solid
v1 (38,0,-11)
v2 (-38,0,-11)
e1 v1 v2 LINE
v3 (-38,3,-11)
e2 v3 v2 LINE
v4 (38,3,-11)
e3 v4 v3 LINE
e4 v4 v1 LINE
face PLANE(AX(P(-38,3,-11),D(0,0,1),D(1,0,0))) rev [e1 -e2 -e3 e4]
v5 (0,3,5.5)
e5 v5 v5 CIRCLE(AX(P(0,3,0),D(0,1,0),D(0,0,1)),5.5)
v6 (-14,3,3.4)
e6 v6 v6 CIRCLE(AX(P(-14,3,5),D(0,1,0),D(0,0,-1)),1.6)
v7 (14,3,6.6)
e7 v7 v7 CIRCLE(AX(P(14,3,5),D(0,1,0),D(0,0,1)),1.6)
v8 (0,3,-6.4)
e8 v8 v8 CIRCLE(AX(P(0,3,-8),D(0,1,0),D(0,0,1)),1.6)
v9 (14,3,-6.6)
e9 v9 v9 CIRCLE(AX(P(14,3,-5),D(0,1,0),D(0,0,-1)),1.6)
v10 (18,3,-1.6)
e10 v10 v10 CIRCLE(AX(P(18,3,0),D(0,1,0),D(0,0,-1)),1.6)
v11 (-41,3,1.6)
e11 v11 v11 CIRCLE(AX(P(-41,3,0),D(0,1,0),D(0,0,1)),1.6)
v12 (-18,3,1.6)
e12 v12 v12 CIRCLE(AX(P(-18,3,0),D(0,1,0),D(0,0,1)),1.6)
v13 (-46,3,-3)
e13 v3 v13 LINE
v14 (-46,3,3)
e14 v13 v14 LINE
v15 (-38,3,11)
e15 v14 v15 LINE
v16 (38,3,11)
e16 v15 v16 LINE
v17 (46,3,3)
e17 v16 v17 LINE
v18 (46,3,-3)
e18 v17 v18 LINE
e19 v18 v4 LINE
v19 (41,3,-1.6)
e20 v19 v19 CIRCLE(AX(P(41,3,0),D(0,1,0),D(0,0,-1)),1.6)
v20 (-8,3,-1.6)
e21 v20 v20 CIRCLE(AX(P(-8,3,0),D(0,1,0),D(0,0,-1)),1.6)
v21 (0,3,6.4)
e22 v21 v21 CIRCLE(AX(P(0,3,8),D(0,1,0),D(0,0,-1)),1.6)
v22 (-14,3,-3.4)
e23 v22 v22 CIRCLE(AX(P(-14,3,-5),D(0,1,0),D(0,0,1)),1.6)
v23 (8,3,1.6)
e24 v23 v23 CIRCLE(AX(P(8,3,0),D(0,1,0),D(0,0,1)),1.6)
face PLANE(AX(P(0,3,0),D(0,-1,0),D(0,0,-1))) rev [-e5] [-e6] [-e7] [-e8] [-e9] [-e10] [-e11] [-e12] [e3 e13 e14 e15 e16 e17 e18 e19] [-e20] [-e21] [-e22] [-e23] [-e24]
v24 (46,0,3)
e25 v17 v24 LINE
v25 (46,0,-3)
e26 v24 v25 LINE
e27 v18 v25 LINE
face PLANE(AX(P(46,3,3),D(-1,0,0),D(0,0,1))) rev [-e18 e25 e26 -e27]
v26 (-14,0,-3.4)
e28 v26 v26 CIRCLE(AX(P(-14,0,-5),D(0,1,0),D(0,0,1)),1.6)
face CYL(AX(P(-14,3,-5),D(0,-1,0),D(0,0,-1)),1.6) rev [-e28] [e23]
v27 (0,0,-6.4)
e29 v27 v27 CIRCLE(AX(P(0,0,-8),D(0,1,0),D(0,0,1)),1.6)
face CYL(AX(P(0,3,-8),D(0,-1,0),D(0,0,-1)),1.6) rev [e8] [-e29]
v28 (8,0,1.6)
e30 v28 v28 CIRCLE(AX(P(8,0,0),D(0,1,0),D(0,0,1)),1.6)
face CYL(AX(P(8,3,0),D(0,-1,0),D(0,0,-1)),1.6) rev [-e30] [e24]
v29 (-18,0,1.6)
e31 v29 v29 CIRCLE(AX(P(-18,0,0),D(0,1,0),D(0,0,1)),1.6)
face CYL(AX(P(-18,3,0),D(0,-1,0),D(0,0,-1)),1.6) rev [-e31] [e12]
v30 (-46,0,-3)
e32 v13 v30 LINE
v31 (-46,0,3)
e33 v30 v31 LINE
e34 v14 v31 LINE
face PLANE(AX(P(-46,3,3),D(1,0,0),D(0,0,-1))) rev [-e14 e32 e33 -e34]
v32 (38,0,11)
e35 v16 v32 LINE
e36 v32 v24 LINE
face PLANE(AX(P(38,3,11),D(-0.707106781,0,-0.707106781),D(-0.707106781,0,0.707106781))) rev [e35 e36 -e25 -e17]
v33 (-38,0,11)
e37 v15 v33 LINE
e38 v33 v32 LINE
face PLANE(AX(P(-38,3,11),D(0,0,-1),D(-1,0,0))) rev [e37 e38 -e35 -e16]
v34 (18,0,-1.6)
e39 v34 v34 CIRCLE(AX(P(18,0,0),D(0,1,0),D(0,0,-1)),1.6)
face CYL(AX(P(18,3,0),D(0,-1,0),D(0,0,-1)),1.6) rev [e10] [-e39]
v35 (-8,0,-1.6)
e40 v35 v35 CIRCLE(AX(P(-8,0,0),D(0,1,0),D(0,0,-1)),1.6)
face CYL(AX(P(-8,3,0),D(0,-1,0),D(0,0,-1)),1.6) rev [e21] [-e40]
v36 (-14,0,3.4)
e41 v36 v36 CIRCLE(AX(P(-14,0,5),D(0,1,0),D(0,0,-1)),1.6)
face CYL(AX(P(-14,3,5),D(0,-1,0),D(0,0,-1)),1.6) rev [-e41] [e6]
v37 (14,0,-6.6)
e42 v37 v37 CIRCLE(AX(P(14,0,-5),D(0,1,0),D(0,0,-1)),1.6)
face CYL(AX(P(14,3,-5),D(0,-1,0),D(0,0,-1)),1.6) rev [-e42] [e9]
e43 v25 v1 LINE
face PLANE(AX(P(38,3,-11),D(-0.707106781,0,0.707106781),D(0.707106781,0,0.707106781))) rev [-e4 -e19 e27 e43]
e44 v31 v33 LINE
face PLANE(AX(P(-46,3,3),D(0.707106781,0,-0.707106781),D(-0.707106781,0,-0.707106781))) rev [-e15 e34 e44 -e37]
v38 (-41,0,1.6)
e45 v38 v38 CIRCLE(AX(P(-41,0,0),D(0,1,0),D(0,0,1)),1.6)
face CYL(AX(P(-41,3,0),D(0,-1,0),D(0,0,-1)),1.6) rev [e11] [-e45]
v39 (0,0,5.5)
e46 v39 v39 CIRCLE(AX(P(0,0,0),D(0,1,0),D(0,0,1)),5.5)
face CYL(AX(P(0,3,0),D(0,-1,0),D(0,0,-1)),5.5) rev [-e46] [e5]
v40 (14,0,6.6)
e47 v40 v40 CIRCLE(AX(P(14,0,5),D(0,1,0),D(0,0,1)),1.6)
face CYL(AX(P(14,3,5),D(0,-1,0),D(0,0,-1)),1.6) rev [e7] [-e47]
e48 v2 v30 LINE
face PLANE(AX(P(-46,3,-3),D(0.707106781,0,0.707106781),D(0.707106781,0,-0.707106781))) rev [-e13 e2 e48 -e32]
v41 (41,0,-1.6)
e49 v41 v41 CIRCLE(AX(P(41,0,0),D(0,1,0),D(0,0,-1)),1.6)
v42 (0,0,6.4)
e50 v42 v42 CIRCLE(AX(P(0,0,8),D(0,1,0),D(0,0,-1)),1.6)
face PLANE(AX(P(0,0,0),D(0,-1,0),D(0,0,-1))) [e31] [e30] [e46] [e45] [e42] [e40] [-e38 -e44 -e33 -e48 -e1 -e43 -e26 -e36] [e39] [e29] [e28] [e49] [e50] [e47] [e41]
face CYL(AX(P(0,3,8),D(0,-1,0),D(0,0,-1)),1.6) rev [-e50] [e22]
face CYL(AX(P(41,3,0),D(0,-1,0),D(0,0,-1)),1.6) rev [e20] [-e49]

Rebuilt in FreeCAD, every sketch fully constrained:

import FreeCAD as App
import Part
import Sketcher
Q = App.Units.Quantity

doc = App.newDocument("Part")
body = doc.addObject("PartDesign::Body", "Body")

# Sketch on XZ plane
sketch1 = body.newObject("Sketcher::SketchObject", "Sketch")
sketch1.AttachmentSupport = (doc.getObject("XZ_Plane"), [""])
sketch1.MapMode = "FlatFace"
sketch1.addGeometry([
    Part.LineSegment(App.Vector(-38, -11, 0), App.Vector(-46, -3, 0)),  # 0
    Part.LineSegment(App.Vector(-46, -3, 0), App.Vector(-46, 3, 0)),  # 1
    Part.LineSegment(App.Vector(-46, 3, 0), App.Vector(-38, 11, 0)),  # 2
    Part.LineSegment(App.Vector(-38, 11, 0), App.Vector(38, 11, 0)),  # 3
    Part.LineSegment(App.Vector(38, 11, 0), App.Vector(46, 3, 0)),  # 4
    Part.LineSegment(App.Vector(46, 3, 0), App.Vector(46, -3, 0)),  # 5
    Part.LineSegment(App.Vector(46, -3, 0), App.Vector(38, -11, 0)),  # 6
    Part.LineSegment(App.Vector(38, -11, 0), App.Vector(-38, -11, 0)),  # 7
    Part.Circle(App.Vector(14, 5, 0), App.Vector(0, 0, 1), 1.6),  # 8
    Part.Circle(App.Vector(0, 8, 0), App.Vector(0, 0, 1), 1.6),  # 9
    Part.Circle(App.Vector(-14, 5, 0), App.Vector(0, 0, 1), 1.6),  # 10
    Part.Circle(App.Vector(41, 0, 0), App.Vector(0, 0, 1), 1.6),  # 11
    Part.Circle(App.Vector(18, 0, 0), App.Vector(0, 0, 1), 1.6),  # 12
    Part.Circle(App.Vector(8, 0, 0), App.Vector(0, 0, 1), 1.6),  # 13
    Part.Circle(App.Vector(14, -5, 0), App.Vector(0, 0, 1), 1.6),  # 14
    Part.Circle(App.Vector(0, 0, 0), App.Vector(0, 0, 1), 5.5),  # 15
    Part.Circle(App.Vector(-8, 0, 0), App.Vector(0, 0, 1), 1.6),  # 16
    Part.Circle(App.Vector(-18, 0, 0), App.Vector(0, 0, 1), 1.6),  # 17
    Part.Circle(App.Vector(-41, 0, 0), App.Vector(0, 0, 1), 1.6),  # 18
    Part.Circle(App.Vector(-14, -5, 0), App.Vector(0, 0, 1), 1.6),  # 19
    Part.Circle(App.Vector(0, -8, 0), App.Vector(0, 0, 1), 1.6),  # 20
], False)
sketch1.addConstraint([
    Sketcher.Constraint("Coincident", 0, 2, 1, 1),
    Sketcher.Constraint("Coincident", 1, 2, 2, 1),
    Sketcher.Constraint("Coincident", 2, 2, 3, 1),
    Sketcher.Constraint("Coincident", 3, 2, 4, 1),
    Sketcher.Constraint("Coincident", 4, 2, 5, 1),
    Sketcher.Constraint("Coincident", 5, 2, 6, 1),
    Sketcher.Constraint("Coincident", 6, 2, 7, 1),
    Sketcher.Constraint("Coincident", 7, 2, 0, 1),
    Sketcher.Constraint("Vertical", 1),
    Sketcher.Constraint("Horizontal", 3),
    Sketcher.Constraint("Vertical", 5),
    Sketcher.Constraint("Horizontal", 7),
    Sketcher.Constraint("Coincident", 15, 3, -1, 1),
    Sketcher.Constraint("Equal", 8, 9),
    Sketcher.Constraint("Equal", 9, 10),
    Sketcher.Constraint("Equal", 10, 11),
    Sketcher.Constraint("Equal", 11, 12),
    Sketcher.Constraint("Equal", 12, 13),
    Sketcher.Constraint("Equal", 13, 14),
    Sketcher.Constraint("Equal", 14, 16),
    Sketcher.Constraint("Equal", 16, 17),
    Sketcher.Constraint("Equal", 17, 18),
    Sketcher.Constraint("Equal", 18, 19),
    Sketcher.Constraint("Equal", 19, 20),
    Sketcher.Constraint("Symmetric", 10, 3, 14, 3, -1, 1),
    Sketcher.Constraint("Symmetric", 13, 3, 16, 3, -1, 1),
    Sketcher.Constraint("Symmetric", 12, 3, 17, 3, -1, 1),
    Sketcher.Constraint("Symmetric", 11, 3, 18, 3, -1, 1),
    Sketcher.Constraint("Symmetric", 8, 3, 19, 3, -1, 1),
    Sketcher.Constraint("Symmetric", 9, 3, 20, 3, -1, 1),
    Sketcher.Constraint("Symmetric", 0, 2, 4, 2, -1, 1),
    Sketcher.Constraint("Symmetric", 2, 2, 6, 2, -1, 1),
    Sketcher.Constraint("Symmetric", 8, 3, 10, 3, -2),
    Sketcher.Constraint("PointOnObject", 9, 3, -2),
    Sketcher.Constraint("PointOnObject", 11, 3, -1),
    Sketcher.Constraint("PointOnObject", 12, 3, -1),
    Sketcher.Constraint("PointOnObject", 13, 3, -1),
    Sketcher.Constraint("Perpendicular", 0, 2),
    Sketcher.Constraint("Perpendicular", 2, 4),
    Sketcher.Constraint("Perpendicular", 4, 6),
    Sketcher.Constraint("Horizontal", 1, 2, 4, 2),
    Sketcher.Constraint("Vertical", 3, 2, 6, 2),
    Sketcher.Constraint("Diameter", 15, Q("11 mm")),
    Sketcher.Constraint("Diameter", 8, Q("3.2 mm")),
    Sketcher.Constraint("DistanceX", 3, 1, 3, 2, Q("76 mm")),
    Sketcher.Constraint("DistanceY", 1, 1, 1, 2, Q("6 mm")),
    Sketcher.Constraint("DistanceX", -1, 1, 8, 3, Q("14 mm")),
    Sketcher.Constraint("DistanceY", -1, 1, 8, 3, Q("5 mm")),
    Sketcher.Constraint("DistanceY", -1, 1, 9, 3, Q("8 mm")),
    Sketcher.Constraint("DistanceX", -1, 1, 11, 3, Q("41 mm")),
    Sketcher.Constraint("DistanceX", -1, 1, 12, 3, Q("18 mm")),
    Sketcher.Constraint("DistanceX", -1, 1, 13, 3, Q("8 mm")),
    Sketcher.Constraint("DistanceX", 0, 2, -1, 1, Q("46 mm")),
])
pad1 = body.newObject("PartDesign::Pad", "Pad")
pad1.Profile = sketch1
pad1.Length = 3
pad1.Reversed = True

doc.recompute()
